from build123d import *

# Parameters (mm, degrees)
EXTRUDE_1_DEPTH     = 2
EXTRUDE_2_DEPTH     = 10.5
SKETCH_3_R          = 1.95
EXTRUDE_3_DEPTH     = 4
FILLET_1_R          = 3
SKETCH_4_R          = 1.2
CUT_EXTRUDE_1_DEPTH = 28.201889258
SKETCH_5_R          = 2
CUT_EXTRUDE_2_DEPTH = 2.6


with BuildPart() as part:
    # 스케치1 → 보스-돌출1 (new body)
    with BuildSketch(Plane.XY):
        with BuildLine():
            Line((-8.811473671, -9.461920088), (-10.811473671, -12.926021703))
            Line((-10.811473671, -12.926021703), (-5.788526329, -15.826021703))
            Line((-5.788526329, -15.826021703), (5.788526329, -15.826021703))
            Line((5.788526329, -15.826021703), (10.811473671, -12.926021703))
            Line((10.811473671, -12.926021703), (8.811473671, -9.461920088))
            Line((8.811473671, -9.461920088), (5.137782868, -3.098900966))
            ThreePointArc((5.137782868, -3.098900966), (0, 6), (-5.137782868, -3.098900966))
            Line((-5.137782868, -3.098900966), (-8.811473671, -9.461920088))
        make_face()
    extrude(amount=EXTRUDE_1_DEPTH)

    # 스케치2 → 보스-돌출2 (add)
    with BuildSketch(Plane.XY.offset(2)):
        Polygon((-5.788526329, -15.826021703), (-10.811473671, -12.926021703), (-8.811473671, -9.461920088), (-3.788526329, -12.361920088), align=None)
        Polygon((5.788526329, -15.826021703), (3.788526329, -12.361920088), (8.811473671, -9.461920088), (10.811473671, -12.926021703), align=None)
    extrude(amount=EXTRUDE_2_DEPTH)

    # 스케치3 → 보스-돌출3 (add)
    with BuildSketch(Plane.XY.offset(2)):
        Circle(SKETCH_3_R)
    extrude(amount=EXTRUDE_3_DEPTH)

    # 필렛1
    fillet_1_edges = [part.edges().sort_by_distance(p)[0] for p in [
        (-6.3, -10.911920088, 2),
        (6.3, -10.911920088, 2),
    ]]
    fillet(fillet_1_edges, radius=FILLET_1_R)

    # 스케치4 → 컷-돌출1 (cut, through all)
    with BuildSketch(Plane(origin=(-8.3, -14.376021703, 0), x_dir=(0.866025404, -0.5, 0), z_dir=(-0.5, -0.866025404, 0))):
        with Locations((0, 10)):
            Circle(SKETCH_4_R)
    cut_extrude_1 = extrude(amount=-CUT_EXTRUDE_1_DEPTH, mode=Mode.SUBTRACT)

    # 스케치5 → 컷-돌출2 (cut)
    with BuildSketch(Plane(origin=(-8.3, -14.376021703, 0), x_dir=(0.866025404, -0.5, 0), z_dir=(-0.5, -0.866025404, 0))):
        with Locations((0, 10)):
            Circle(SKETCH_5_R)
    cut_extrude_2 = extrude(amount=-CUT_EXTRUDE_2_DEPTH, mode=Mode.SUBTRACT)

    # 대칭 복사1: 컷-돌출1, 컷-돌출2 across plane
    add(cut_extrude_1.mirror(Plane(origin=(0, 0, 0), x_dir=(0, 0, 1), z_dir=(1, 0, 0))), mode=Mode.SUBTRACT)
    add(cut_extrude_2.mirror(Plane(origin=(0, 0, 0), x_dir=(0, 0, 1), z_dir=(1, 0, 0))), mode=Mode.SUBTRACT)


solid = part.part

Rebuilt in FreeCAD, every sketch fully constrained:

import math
import FreeCAD as App
import Part
import Sketcher
from FreeCAD import Vector
Q = App.Units.Quantity


def edges_at(feature, points):
    """Names of the edges that pass closest to the given points."""
    edges = feature.Shape.Edges
    near = lambda p: min(range(len(edges)), key=lambda i: edges[i].distToShape(Part.Vertex(*p))[0])
    return sorted({f"Edge{near(p) + 1}" for p in points})


def add_polygon(sketch, points):
    """Adds a closed chain of lines whose ends are joined by coincident constraints."""
    first, n = sketch.GeometryCount, len(points)
    for a, b in zip(points, points[1:] + points[:1]):
        sketch.addGeometry(Part.LineSegment(App.Vector(*a, 0), App.Vector(*b, 0)), False)
    for i in range(n):
        sketch.addConstraint(Sketcher.Constraint("Coincident", first + i, 2, first + (i + 1) % n, 1))

doc = App.newDocument("Part")
body = doc.addObject("PartDesign::Body", "Body")

sketch1 = body.newObject("Sketcher::SketchObject", "Sketch")
sketch1.AttachmentSupport = (doc.getObject("XY_Plane"), [""])
sketch1.MapMode = "FlatFace"
sketch1.addGeometry(Part.LineSegment(Vector(-8.8, -9.5, 0), Vector(-10.8, -12.9, 0)), False)
sketch1.addGeometry(Part.LineSegment(Vector(-10.8, -12.9, 0), Vector(-5.8, -15.8, 0)), False)
sketch1.addGeometry(Part.LineSegment(Vector(-5.8, -15.8, 0), Vector(5.8, -15.8, 0)), False)
sketch1.addGeometry(Part.LineSegment(Vector(5.8, -15.8, 0), Vector(10.8, -12.9, 0)), False)
sketch1.addGeometry(Part.LineSegment(Vector(10.8, -12.9, 0), Vector(8.8, -9.5, 0)), False)
sketch1.addGeometry(Part.LineSegment(Vector(8.8, -9.5, 0), Vector(5.1, -3.1, 0)), False)
sketch1.addGeometry(Part.ArcOfCircle(Part.Circle(Vector(0, 0, 0), Vector(0, 0, 1), 6), math.radians(-31), math.radians(211)), False)
sketch1.addGeometry(Part.LineSegment(Vector(-5.1, -3.1, 0), Vector(-8.8, -9.5, 0)), False)
sketch1.addConstraint(Sketcher.Constraint("Coincident", 0, 2, 1, 1))
sketch1.addConstraint(Sketcher.Constraint("Coincident", 1, 2, 2, 1))
sketch1.addConstraint(Sketcher.Constraint("Coincident", 2, 2, 3, 1))
sketch1.addConstraint(Sketcher.Constraint("Coincident", 3, 2, 4, 1))
sketch1.addConstraint(Sketcher.Constraint("Coincident", 4, 2, 5, 1))
sketch1.addConstraint(Sketcher.Constraint("Coincident", 5, 2, 6, 1))
sketch1.addConstraint(Sketcher.Constraint("Coincident", 6, 2, 7, 1))
sketch1.addConstraint(Sketcher.Constraint("Coincident", 7, 2, 0, 1))
sketch1.addConstraint(Sketcher.Constraint("Horizontal", 2))
sketch1.addConstraint(Sketcher.Constraint("Coincident", 6, 3, -1, 1))
sketch1.addConstraint(Sketcher.Constraint("Symmetric", 0, 2, 3, 2, -2))
sketch1.addConstraint(Sketcher.Constraint("Symmetric", 4, 2, 7, 2, -2))
sketch1.addConstraint(Sketcher.Constraint("Perpendicular", 0, 1))
sketch1.addConstraint(Sketcher.Constraint("Perpendicular", 3, 4))
sketch1.addConstraint(Sketcher.Constraint("Parallel", 4, 5))
sketch1.addConstraint(Sketcher.Constraint("Perpendicular", 1, 7))
sketch1.addConstraint(Sketcher.Constraint("Radius", 6, 6.0))
sketch1.addConstraint(Sketcher.Constraint("Angle", 0, Q("-120 deg")))
sketch1.addConstraint(Sketcher.Constraint("Distance", 0, 4.0))
sketch1.addConstraint(Sketcher.Constraint("Distance", 1, 5.8))
sketch1.addConstraint(Sketcher.Constraint("DistanceX", 0, 2, 2, 2, 16.6))
sketch1.addConstraint(Sketcher.Constraint("DistanceY", 5, 2, -1, 1, 3.098901))
pad1 = body.newObject("PartDesign::Pad", "Pad")
pad1.Profile = sketch1
pad1.Length = 2

sketch2 = body.newObject("Sketcher::SketchObject", "Sketch001")
sketch2.AttachmentSupport = (doc.getObject("XY_Plane"), [""])
sketch2.MapMode = "FlatFace"
sketch2.AttachmentOffset = App.Placement(Vector(0, 0, 2), App.Rotation())
add_polygon(sketch2, [(-10.8, -12.9), (-5.8, -15.8), (-3.8, -12.4), (-8.8, -9.5)])
add_polygon(sketch2, [(3.8, -12.4), (5.8, -15.8), (10.8, -12.9), (8.8, -9.5)])
sketch2.addConstraint(Sketcher.Constraint("Symmetric", 0, 2, 4, 2, -2))
sketch2.addConstraint(Sketcher.Constraint("Symmetric", 3, 2, 5, 2, -2))
sketch2.addConstraint(Sketcher.Constraint("Symmetric", 2, 2, 6, 2, -2))
sketch2.addConstraint(Sketcher.Constraint("Symmetric", 1, 2, 7, 2, -2))
sketch2.addConstraint(Sketcher.Constraint("Perpendicular", 0, 1))
sketch2.addConstraint(Sketcher.Constraint("Perpendicular", 1, 2))
sketch2.addConstraint(Sketcher.Constraint("Perpendicular", 2, 3))
sketch2.addConstraint(Sketcher.Constraint("Angle", 0, Q("-30 deg")))
sketch2.addConstraint(Sketcher.Constraint("Distance", 1, 4.0))
sketch2.addConstraint(Sketcher.Constraint("Distance", 0, 5.8))
sketch2.addConstraint(Sketcher.Constraint("DistanceX", 2, 2, 4, 2, 14.6))
sketch2.addConstraint(Sketcher.Constraint("DistanceY", 0, 2, -1, 1, 15.826022))
pad2 = body.newObject("PartDesign::Pad", "Pad001")
pad2.Profile = sketch2
pad2.Length = 10.5

sketch3 = body.newObject("Sketcher::SketchObject", "Sketch002")
sketch3.AttachmentSupport = (doc.getObject("XY_Plane"), [""])
sketch3.MapMode = "FlatFace"
sketch3.AttachmentOffset = App.Placement(Vector(0, 0, 2), App.Rotation())
sketch3.addGeometry(Part.Circle(Vector(0, 0, 0), Vector(0, 0, 1), 1.9), False)
sketch3.addConstraint(Sketcher.Constraint("Coincident", 0, 3, -1, 1))
sketch3.addConstraint(Sketcher.Constraint("Diameter", 0, 3.9))
pad3 = body.newObject("PartDesign::Pad", "Pad002")
pad3.Profile = sketch3
pad3.Length = 4
doc.recompute()

fillet = body.newObject("PartDesign::Fillet", "Fillet")
fillet.Base = (pad3, edges_at(pad3, [(-6.3, -10.912, 2), (6.3, -10.912, 2)]))
fillet.Radius = 3

sketch4 = body.newObject("Sketcher::SketchObject", "Sketch003")
sketch4.Placement = App.Placement(Vector(-8.3, -14.376022, 0), App.Rotation(Vector(0.866025404, -0.5, 0), Vector(0, 0, 1), Vector(-0.5, -0.866025404, 0), "ZXY"))
sketch4.addGeometry(Part.Circle(Vector(0, 10, 0), Vector(0, 0, 1), 1.2), False)
sketch4.addConstraint(Sketcher.Constraint("PointOnObject", 0, 3, -2))
sketch4.addConstraint(Sketcher.Constraint("Diameter", 0, 2.4))
sketch4.addConstraint(Sketcher.Constraint("DistanceY", -1, 1, 0, 3, 10.0))
pocket1 = body.newObject("PartDesign::Pocket", "Pocket")
pocket1.Profile = sketch4
pocket1.Type = "ThroughAll"

sketch5 = body.newObject("Sketcher::SketchObject", "Sketch004")
sketch5.Placement = App.Placement(Vector(-8.3, -14.376022, 0), App.Rotation(Vector(0.866025404, -0.5, 0), Vector(0, 0, 1), Vector(-0.5, -0.866025404, 0), "ZXY"))
sketch5.addGeometry(Part.Circle(Vector(0, 10, 0), Vector(0, 0, 1), 2), False)
sketch5.addConstraint(Sketcher.Constraint("PointOnObject", 0, 3, -2))
sketch5.addConstraint(Sketcher.Constraint("Diameter", 0, 4.0))
sketch5.addConstraint(Sketcher.Constraint("DistanceY", -1, 1, 0, 3, 10.0))
pocket2 = body.newObject("PartDesign::Pocket", "Pocket001")
pocket2.Profile = sketch5
pocket2.Length = 2.6
doc.recompute()

mirrored = body.newObject("PartDesign::Mirrored", "Mirrored")
mirrored.Originals = [pocket1, pocket2]
mirrored.MirrorPlane = (doc.getObject("YZ_Plane"), [""])
body.Tip = mirrored

doc.recompute()
